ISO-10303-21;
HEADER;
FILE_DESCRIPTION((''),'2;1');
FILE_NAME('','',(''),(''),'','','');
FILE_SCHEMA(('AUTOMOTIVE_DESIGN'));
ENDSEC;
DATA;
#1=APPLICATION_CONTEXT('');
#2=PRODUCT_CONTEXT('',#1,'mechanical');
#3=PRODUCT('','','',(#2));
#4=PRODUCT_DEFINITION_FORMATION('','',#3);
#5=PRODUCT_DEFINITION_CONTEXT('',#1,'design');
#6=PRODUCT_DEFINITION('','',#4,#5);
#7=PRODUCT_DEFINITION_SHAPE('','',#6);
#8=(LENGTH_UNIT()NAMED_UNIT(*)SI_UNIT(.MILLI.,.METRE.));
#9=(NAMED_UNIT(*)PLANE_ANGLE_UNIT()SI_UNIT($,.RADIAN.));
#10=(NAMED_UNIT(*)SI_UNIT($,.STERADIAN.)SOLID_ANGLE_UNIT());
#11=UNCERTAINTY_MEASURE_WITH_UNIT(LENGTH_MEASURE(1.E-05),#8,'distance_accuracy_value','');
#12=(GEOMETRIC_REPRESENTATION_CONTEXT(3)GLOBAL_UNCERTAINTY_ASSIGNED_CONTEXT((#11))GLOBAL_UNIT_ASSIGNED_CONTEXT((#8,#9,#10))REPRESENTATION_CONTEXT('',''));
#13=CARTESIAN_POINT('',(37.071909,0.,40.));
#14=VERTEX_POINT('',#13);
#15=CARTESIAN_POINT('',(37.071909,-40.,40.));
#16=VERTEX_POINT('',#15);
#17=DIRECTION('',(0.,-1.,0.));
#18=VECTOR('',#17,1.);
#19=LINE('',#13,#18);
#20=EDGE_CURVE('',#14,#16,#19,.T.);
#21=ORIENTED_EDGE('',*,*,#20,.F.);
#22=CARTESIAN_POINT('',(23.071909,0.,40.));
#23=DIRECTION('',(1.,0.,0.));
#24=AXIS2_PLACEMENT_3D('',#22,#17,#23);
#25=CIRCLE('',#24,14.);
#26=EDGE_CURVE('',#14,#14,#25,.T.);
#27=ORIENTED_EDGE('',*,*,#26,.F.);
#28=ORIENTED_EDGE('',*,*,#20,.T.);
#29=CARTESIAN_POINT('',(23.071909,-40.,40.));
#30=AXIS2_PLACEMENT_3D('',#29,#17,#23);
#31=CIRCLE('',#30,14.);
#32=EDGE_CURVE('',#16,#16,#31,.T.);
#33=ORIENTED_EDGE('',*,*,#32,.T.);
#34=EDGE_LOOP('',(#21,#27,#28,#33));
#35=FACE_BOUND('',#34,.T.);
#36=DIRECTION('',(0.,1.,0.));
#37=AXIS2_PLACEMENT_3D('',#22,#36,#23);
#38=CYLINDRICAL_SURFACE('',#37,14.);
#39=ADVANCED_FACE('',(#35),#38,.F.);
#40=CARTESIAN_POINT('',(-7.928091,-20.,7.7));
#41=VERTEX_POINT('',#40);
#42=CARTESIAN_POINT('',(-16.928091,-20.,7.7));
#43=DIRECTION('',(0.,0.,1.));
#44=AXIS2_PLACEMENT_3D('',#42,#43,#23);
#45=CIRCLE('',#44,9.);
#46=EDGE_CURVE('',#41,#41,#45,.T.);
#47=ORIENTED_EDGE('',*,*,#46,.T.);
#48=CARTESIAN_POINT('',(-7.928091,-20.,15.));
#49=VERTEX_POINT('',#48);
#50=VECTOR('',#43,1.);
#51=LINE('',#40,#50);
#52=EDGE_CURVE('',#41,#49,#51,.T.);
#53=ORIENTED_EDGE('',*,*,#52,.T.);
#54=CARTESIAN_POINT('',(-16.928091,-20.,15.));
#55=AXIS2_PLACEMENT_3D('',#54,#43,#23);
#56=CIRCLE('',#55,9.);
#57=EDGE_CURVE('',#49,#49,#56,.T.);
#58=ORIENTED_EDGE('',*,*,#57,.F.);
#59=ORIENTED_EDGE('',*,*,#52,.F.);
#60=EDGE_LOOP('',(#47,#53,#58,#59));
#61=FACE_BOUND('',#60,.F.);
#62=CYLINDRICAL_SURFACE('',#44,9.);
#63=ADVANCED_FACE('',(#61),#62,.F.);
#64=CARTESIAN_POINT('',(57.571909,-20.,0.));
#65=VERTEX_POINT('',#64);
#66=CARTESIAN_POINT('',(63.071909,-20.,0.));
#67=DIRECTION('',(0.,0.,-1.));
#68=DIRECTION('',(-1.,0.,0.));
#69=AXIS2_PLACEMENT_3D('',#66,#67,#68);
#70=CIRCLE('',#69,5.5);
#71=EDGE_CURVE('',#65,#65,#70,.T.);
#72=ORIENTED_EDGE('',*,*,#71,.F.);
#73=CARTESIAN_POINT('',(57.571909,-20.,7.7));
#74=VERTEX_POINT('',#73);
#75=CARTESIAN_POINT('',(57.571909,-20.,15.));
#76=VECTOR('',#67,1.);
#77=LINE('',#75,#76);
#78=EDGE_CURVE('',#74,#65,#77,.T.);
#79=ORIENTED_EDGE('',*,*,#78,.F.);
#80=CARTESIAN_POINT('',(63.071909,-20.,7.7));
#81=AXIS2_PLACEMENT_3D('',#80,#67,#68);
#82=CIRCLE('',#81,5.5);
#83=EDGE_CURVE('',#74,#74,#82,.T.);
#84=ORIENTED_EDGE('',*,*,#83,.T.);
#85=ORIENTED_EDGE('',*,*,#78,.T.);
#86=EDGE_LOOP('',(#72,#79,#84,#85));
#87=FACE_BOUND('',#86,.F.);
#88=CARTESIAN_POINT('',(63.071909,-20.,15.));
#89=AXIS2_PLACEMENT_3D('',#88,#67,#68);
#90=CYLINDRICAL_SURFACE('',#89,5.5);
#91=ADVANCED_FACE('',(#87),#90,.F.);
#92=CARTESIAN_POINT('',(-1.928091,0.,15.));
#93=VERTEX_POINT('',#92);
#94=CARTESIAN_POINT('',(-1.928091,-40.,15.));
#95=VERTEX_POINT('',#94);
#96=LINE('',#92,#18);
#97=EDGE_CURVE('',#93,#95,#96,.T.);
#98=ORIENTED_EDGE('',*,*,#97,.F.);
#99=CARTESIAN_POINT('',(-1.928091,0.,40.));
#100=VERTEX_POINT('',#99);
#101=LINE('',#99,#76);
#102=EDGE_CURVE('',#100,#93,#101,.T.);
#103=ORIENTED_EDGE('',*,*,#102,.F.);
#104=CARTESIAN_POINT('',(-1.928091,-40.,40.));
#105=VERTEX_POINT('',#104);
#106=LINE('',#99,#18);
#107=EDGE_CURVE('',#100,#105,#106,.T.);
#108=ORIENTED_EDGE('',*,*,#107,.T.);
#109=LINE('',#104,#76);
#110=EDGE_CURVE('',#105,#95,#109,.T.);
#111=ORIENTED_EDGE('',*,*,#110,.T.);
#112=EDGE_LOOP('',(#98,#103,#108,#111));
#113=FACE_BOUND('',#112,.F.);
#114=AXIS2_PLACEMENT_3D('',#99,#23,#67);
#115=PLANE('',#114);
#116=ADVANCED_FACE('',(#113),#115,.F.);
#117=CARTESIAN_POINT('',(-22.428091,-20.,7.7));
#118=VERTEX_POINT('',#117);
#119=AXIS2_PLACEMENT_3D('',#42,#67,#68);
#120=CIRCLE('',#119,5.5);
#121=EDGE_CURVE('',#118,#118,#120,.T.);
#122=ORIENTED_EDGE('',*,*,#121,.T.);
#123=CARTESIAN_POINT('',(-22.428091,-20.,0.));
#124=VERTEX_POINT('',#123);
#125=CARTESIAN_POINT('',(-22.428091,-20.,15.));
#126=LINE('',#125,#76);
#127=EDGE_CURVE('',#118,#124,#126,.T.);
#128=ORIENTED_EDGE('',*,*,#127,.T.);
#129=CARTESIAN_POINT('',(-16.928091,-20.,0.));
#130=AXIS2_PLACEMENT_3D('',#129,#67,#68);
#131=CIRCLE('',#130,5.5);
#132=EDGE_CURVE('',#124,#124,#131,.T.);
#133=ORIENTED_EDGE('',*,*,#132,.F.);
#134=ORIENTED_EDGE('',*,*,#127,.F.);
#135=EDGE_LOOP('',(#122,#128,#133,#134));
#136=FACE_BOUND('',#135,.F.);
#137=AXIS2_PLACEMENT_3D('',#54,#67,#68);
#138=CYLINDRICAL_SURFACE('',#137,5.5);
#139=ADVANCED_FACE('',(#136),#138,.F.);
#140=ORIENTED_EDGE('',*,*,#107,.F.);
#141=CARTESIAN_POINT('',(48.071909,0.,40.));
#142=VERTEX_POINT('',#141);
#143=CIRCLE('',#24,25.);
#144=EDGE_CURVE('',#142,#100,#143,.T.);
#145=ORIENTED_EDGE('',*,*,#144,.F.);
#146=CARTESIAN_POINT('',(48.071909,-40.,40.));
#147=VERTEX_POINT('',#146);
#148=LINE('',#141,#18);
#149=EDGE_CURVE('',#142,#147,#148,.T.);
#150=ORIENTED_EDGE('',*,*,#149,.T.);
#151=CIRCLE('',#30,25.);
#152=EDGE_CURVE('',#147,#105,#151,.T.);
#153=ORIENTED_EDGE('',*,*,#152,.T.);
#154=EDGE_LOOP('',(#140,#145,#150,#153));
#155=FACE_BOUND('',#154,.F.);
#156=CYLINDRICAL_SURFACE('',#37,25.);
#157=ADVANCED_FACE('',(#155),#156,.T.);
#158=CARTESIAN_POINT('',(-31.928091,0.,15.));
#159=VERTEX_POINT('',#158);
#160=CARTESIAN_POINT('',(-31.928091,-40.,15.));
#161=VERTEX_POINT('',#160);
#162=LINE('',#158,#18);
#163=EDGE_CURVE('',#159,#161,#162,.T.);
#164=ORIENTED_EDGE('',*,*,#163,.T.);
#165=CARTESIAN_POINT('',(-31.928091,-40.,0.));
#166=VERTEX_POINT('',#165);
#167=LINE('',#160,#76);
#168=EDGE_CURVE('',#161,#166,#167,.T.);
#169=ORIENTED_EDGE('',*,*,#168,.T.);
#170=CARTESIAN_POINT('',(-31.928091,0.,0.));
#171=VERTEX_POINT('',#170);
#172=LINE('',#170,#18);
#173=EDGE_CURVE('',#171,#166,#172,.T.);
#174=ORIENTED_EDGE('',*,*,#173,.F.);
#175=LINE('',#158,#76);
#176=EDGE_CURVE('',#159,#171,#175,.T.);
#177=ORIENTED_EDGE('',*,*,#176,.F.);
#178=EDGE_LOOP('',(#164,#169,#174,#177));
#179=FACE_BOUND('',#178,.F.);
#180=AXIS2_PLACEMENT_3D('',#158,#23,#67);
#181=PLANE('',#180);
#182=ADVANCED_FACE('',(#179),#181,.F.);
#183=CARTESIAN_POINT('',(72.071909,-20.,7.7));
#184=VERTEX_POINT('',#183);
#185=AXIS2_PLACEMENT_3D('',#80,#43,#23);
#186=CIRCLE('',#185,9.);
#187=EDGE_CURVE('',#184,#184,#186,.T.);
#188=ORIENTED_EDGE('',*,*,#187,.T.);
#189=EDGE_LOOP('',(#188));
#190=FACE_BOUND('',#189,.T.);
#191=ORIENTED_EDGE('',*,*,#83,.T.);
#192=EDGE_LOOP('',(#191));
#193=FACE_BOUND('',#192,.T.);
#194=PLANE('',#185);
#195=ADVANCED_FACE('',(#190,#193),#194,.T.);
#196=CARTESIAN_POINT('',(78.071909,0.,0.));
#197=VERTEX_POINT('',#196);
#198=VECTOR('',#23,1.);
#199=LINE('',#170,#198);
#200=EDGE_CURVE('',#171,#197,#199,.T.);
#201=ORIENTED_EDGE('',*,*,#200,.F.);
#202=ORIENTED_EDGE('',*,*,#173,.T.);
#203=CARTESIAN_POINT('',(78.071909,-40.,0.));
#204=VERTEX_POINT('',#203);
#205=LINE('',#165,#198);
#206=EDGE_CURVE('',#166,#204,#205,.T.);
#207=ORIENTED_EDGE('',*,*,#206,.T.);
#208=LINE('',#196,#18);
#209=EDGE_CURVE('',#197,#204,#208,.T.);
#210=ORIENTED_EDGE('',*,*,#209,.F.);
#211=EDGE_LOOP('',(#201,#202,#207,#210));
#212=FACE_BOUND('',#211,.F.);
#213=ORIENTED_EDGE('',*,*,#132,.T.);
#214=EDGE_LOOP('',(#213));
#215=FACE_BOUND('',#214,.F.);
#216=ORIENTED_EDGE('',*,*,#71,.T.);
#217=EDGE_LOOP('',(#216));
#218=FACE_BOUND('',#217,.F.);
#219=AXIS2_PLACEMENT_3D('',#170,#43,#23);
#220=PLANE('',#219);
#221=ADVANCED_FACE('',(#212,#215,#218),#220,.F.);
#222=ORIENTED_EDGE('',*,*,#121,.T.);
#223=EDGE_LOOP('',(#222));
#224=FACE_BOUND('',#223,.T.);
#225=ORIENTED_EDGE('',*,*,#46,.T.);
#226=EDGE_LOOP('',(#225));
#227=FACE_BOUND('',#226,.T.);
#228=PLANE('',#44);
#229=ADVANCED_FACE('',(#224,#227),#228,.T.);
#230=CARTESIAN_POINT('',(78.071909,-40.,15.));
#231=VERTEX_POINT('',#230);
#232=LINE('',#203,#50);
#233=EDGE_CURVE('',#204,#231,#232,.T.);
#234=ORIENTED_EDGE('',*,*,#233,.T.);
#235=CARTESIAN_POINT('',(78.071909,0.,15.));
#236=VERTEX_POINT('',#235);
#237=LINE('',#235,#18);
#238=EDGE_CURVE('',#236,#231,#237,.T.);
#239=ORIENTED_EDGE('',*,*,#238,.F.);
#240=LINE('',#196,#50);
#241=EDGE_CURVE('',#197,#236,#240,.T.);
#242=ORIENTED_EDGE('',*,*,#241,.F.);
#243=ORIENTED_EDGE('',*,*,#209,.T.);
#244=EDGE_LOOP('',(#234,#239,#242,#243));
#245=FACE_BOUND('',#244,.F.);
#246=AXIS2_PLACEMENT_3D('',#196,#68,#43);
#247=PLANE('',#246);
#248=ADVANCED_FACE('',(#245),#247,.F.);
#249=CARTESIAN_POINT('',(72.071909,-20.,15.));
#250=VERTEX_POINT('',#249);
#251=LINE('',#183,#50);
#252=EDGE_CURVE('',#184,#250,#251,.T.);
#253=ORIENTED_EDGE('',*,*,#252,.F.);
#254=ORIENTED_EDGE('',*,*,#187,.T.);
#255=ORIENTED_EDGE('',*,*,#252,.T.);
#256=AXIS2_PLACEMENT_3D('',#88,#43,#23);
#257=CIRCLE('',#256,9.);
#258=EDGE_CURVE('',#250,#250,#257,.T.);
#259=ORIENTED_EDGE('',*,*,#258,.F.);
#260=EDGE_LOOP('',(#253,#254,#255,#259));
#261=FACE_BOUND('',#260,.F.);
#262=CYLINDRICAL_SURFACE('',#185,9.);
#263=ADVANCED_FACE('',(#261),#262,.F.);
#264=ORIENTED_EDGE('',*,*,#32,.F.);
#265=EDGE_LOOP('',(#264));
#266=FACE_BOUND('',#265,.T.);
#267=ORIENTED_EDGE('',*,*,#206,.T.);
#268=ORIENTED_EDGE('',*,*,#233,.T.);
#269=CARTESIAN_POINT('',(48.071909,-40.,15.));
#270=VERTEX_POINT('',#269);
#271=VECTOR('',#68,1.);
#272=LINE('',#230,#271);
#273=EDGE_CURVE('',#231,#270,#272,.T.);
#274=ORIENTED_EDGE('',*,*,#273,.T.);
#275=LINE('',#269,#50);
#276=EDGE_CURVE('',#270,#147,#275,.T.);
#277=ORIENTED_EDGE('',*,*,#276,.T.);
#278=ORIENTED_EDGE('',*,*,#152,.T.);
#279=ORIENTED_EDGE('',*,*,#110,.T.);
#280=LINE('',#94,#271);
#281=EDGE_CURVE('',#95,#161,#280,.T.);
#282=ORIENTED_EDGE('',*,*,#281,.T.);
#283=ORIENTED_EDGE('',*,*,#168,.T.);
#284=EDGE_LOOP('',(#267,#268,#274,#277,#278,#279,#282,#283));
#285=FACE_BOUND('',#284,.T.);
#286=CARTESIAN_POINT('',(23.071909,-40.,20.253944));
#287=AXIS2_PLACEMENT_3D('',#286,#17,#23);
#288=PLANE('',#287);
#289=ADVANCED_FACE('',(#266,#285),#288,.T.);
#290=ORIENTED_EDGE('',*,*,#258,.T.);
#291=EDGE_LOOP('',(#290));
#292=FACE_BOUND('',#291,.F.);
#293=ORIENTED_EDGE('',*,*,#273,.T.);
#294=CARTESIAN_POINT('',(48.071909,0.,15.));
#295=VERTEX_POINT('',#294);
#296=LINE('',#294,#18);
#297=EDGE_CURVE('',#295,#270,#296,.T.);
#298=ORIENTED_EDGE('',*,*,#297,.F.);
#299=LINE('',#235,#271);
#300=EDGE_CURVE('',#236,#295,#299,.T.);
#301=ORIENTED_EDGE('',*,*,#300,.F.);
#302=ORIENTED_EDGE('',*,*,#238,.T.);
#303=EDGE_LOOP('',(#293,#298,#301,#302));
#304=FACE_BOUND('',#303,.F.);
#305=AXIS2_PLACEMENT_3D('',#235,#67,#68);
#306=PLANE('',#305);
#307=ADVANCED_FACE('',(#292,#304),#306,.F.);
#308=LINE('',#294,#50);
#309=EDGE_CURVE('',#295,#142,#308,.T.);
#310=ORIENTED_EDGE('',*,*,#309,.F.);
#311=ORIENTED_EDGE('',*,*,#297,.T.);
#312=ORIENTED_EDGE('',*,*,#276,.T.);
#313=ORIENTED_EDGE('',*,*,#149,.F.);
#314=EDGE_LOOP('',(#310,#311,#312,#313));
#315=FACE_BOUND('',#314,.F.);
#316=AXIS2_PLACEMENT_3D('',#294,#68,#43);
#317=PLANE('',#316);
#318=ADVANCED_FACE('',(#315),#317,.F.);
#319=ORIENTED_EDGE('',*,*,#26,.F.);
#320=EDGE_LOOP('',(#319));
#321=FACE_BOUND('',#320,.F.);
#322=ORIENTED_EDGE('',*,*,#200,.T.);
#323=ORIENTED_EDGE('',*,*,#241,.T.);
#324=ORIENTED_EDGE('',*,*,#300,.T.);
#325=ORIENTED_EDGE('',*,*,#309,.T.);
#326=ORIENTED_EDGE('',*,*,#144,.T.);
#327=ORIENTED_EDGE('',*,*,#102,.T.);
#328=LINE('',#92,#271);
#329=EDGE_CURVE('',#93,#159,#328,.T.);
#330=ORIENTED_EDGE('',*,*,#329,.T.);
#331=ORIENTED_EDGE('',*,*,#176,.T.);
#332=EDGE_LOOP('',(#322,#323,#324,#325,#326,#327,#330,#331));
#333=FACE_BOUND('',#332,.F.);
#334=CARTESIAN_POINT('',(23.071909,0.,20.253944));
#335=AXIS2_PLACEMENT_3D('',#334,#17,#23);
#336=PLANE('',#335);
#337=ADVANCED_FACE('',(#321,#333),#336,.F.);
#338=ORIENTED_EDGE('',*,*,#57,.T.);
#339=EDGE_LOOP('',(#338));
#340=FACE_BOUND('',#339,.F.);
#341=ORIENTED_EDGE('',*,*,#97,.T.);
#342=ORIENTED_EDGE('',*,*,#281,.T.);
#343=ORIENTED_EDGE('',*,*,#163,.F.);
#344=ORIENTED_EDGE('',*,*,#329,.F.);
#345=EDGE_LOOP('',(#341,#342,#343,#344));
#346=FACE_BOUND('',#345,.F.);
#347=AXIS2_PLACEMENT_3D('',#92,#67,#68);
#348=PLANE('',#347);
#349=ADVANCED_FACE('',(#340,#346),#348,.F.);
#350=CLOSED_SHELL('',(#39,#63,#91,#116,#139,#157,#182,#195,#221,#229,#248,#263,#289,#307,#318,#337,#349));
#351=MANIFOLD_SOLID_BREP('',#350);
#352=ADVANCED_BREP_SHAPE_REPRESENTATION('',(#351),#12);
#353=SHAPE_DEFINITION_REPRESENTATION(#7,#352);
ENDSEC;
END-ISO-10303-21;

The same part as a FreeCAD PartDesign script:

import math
import FreeCAD as App
import Part
import Sketcher
from FreeCAD import Vector
Q = App.Units.Quantity

doc = App.newDocument("Part")
body = doc.addObject("PartDesign::Body", "Body")

sketch1 = body.newObject("Sketcher::SketchObject", "Sketch")
sketch1.AttachmentSupport = (doc.getObject("XZ_Plane"), [""])
sketch1.MapMode = "FlatFace"
sketch1.addGeometry(Part.LineSegment(Vector(-31.928091, 15, 0), Vector(-31.928091, 0, 0)), False)
sketch1.addGeometry(Part.LineSegment(Vector(-31.928091, 0, 0), Vector(78.071909, 0, 0)), False)
sketch1.addGeometry(Part.LineSegment(Vector(78.071909, 0, 0), Vector(78.071909, 15, 0)), False)
sketch1.addGeometry(Part.LineSegment(Vector(78.071909, 15, 0), Vector(48.071909, 15, 0)), False)
sketch1.addGeometry(Part.LineSegment(Vector(48.071909, 15, 0), Vector(48.071909, 40, 0)), False)
sketch1.addGeometry(Part.ArcOfCircle(Part.Circle(Vector(23.071909, 40, 0), Vector(0, 0, 1), 25), math.radians(0), math.radians(180)), False)
sketch1.addGeometry(Part.LineSegment(Vector(-1.928091, 40, 0), Vector(-1.928091, 15, 0)), False)
sketch1.addGeometry(Part.LineSegment(Vector(-1.928091, 15, 0), Vector(-31.928091, 15, 0)), False)
sketch1.addGeometry(Part.Circle(Vector(23.071909, 40, 0), Vector(0, 0, 1), 14), False)
sketch1.addConstraint(Sketcher.Constraint("Coincident", 0, 2, 1, 1))
sketch1.addConstraint(Sketcher.Constraint("Coincident", 1, 2, 2, 1))
sketch1.addConstraint(Sketcher.Constraint("Coincident", 2, 2, 3, 1))
sketch1.addConstraint(Sketcher.Constraint("Coincident", 3, 2, 4, 1))
sketch1.addConstraint(Sketcher.Constraint("Tangent", 4, 2, 5, 1))
sketch1.addConstraint(Sketcher.Constraint("Tangent", 5, 2, 6, 1))
sketch1.addConstraint(Sketcher.Constraint("Coincident", 6, 2, 7, 1))
sketch1.addConstraint(Sketcher.Constraint("Coincident", 7, 2, 0, 1))
sketch1.addConstraint(Sketcher.Constraint("Vertical", 0))
sketch1.addConstraint(Sketcher.Constraint("Horizontal", 1))
sketch1.addConstraint(Sketcher.Constraint("Vertical", 2))
sketch1.addConstraint(Sketcher.Constraint("Horizontal", 3))
sketch1.addConstraint(Sketcher.Constraint("Vertical", 4))
sketch1.addConstraint(Sketcher.Constraint("Vertical", 6))
sketch1.addConstraint(Sketcher.Constraint("Horizontal", 7))
sketch1.addConstraint(Sketcher.Constraint("Coincident", 8, 3, 5, 3))
sketch1.addConstraint(Sketcher.Constraint("PointOnObject", 0, 2, -1))
sketch1.addConstraint(Sketcher.Constraint("Horizontal", 3, 2, 6, 2))
sketch1.addConstraint(Sketcher.Constraint("Equal", 3, 7))
sketch1.addConstraint(Sketcher.Constraint("Diameter", 8, Q("28 mm")))
sketch1.addConstraint(Sketcher.Constraint("Radius", 5, Q("25 mm")))
sketch1.addConstraint(Sketcher.Constraint("DistanceX", 1, 1, 1, 2, Q("110 mm")))
sketch1.addConstraint(Sketcher.Constraint("DistanceY", 0, 2, 0, 1, Q("15 mm")))
sketch1.addConstraint(Sketcher.Constraint("DistanceY", 4, 1, 4, 2, Q("25 mm")))
sketch1.addConstraint(Sketcher.Constraint("DistanceX", -1, 1, 5, 3, Q("23.071909 mm")))
pad1 = body.newObject("PartDesign::Pad", "Pad")
pad1.Profile = sketch1
pad1.Length = 40

sketch2 = body.newObject("Sketcher::SketchObject", "Sketch001")
sketch2.AttachmentSupport = (doc.getObject("XY_Plane"), [""])
sketch2.MapMode = "FlatFace"
sketch2.AttachmentOffset = App.Placement(Vector(0, 0, 15), App.Rotation())
sketch2.addGeometry(Part.Circle(Vector(-16.928091, -20, 0), Vector(0, 0, 1), 5.5), False)
sketch2.addGeometry(Part.Circle(Vector(63.071909, -20, 0), Vector(0, 0, 1), 5.5), False)
sketch2.addConstraint(Sketcher.Constraint("Equal", 0, 1))
sketch2.addConstraint(Sketcher.Constraint("Horizontal", 0, 3, 1, 3))
sketch2.addConstraint(Sketcher.Constraint("Diameter", 0, Q("11 mm")))
sketch2.addConstraint(Sketcher.Constraint("DistanceY", 0, 3, -1, 1, Q("20 mm")))
sketch2.addConstraint(Sketcher.Constraint("DistanceX", 0, 3, 1, 3, Q("80 mm")))
sketch2.addConstraint(Sketcher.Constraint("DistanceX", 0, 3, -1, 1, Q("16.928091 mm")))
doc.recompute()
hole = body.newObject("PartDesign::Hole", "Hole")
hole.Profile = sketch2
hole.ThreadType = "None"
hole.Diameter = 11
hole.DepthType = "ThroughAll"
hole.HoleCutType = "Counterbore"
hole.HoleCutDiameter = 18
hole.HoleCutDepth = 7.3

doc.recompute()
